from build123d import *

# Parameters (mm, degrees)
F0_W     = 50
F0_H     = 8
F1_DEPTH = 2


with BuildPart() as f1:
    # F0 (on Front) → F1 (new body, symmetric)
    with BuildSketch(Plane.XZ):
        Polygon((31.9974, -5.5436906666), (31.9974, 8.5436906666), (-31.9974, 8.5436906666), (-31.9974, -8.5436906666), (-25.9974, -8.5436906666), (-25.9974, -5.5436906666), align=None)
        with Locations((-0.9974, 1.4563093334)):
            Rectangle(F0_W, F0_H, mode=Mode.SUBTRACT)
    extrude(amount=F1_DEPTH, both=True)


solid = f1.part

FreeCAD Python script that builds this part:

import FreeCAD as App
import Part
import Sketcher

V = App.Vector
Q = App.Units.Quantity


def add_polygon(sketch, points):
    """Adds a closed chain of lines whose ends are joined by coincident constraints."""
    first, n = sketch.GeometryCount, len(points)
    for a, b in zip(points, points[1:] + points[:1]):
        sketch.addGeometry(Part.LineSegment(App.Vector(*a, 0), App.Vector(*b, 0)), False)
    for i in range(n):
        sketch.addConstraint(Sketcher.Constraint("Coincident", first + i, 2, first + (i + 1) % n, 1))

doc = App.newDocument("Part")
body = doc.addObject("PartDesign::Body", "Body")

# Sketch on XZ plane
sketch1 = body.newObject("Sketcher::SketchObject", "Sketch")
sketch1.AttachmentSupport = (doc.getObject("XZ_Plane"), [""])
sketch1.MapMode = "FlatFace"
add_polygon(sketch1, [(32, -5.5), (32, 8.5), (-32, 8.5), (-32, -8.5), (-26, -8.5), (-26, -5.5)])  # lines 0-5
add_polygon(sketch1, [(24, -2.5), (-26, -2.5), (-26, 5.5), (24, 5.5)])  # lines 6-9
sketch1.addConstraint([
    Sketcher.Constraint("Vertical", 0),
    Sketcher.Constraint("Horizontal", 1),
    Sketcher.Constraint("Vertical", 2),
    Sketcher.Constraint("Horizontal", 3),
    Sketcher.Constraint("Vertical", 4),
    Sketcher.Constraint("Horizontal", 5),
    Sketcher.Constraint("Horizontal", 6),
    Sketcher.Constraint("Vertical", 7),
    Sketcher.Constraint("Horizontal", 8),
    Sketcher.Constraint("Vertical", 9),
    Sketcher.Constraint("Symmetric", 0, 2, 2, 2, -1, 1),
    Sketcher.Constraint("Vertical", 4, 2, 6, 2),
    Sketcher.Constraint("DistanceX", 3, 1, 3, 2, Q("6 mm")),
    Sketcher.Constraint("DistanceX", 6, 2, 6, 1, Q("50 mm")),
    Sketcher.Constraint("DistanceY", 4, 1, 4, 2, Q("3 mm")),
    Sketcher.Constraint("DistanceY", 7, 1, 7, 2, Q("8 mm")),
    Sketcher.Constraint("DistanceY", 4, 2, 6, 2, Q("3 mm")),
    Sketcher.Constraint("DistanceX", 1, 2, 1, 1, Q("63.9948 mm")),
    Sketcher.Constraint("DistanceY", 0, 1, 0, 2, Q("14.087381 mm")),
])
pad1 = body.newObject("PartDesign::Pad", "Pad")
pad1.Profile = sketch1
pad1.Length = 4
pad1.Midplane = True

doc.recompute()
